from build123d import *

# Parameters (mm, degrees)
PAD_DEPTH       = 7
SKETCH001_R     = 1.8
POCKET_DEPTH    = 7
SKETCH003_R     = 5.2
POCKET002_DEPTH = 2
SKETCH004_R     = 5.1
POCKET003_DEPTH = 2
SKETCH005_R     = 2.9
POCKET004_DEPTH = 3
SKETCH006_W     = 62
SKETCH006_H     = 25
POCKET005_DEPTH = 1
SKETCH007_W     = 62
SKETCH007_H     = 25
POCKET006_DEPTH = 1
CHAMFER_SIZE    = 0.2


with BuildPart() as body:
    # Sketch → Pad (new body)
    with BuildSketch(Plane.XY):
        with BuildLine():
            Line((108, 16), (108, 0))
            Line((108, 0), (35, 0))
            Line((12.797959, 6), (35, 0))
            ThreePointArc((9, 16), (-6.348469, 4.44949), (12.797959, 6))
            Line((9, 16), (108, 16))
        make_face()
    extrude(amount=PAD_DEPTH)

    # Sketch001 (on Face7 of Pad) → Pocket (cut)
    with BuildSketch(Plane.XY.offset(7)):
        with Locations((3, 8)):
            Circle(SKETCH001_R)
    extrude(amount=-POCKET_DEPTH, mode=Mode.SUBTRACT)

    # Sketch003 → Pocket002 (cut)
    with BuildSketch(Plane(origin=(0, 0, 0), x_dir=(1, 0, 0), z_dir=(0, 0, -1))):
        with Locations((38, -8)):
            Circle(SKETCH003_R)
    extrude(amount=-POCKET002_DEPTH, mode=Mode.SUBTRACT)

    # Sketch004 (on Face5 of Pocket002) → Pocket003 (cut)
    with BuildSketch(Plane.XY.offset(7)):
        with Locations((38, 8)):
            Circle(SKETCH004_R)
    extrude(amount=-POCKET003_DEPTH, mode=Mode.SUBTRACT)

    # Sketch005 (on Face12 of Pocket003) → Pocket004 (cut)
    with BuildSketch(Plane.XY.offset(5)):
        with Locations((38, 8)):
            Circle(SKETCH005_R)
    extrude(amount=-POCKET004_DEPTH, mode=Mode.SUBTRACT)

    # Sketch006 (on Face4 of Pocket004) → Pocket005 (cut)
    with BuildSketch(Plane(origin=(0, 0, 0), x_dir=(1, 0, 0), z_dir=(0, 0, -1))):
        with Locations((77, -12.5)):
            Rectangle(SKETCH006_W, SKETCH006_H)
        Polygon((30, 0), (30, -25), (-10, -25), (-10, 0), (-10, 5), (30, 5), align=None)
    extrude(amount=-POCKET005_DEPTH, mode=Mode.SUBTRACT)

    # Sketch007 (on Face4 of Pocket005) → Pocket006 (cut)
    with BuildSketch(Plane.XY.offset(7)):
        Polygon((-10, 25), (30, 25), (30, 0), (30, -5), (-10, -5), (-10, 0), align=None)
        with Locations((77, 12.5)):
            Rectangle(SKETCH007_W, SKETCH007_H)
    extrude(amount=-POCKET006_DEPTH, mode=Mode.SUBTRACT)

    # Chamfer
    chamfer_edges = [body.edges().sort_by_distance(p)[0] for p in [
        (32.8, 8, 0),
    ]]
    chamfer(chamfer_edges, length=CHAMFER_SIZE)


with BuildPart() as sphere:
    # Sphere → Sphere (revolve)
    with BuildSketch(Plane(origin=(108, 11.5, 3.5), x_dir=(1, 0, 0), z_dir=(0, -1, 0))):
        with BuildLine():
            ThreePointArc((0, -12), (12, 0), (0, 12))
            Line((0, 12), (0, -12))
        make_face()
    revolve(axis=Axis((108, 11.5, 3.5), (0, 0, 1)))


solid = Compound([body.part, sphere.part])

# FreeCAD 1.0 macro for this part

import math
import FreeCAD as App
import Part
import Sketcher
from FreeCAD import Vector


def edges_at(feature, points):
    """Names of the edges that pass closest to the given points."""
    edges = feature.Shape.Edges
    near = lambda p: min(range(len(edges)), key=lambda i: edges[i].distToShape(Part.Vertex(*p))[0])
    return sorted({f"Edge{near(p) + 1}" for p in points})


def add_polygon(sketch, points):
    """Adds a closed chain of lines whose ends are joined by coincident constraints."""
    first, n = sketch.GeometryCount, len(points)
    for a, b in zip(points, points[1:] + points[:1]):
        sketch.addGeometry(Part.LineSegment(App.Vector(*a, 0), App.Vector(*b, 0)), False)
    for i in range(n):
        sketch.addConstraint(Sketcher.Constraint("Coincident", first + i, 2, first + (i + 1) % n, 1))

doc = App.newDocument("Part")
body = doc.addObject("PartDesign::Body", "Body")

# Sketch on XY plane
sketch1 = body.newObject("Sketcher::SketchObject", "Sketch")
sketch1.AttachmentSupport = (doc.getObject("XY_Plane"), [""])
sketch1.MapMode = "FlatFace"
sketch1.addGeometry([
    Part.LineSegment(Vector(108, 0, 0), Vector(108, 16, 0)),  # 0
    Part.LineSegment(Vector(108, 16, 0), Vector(9, 16, 0)),  # 1
    Part.ArcOfCircle(Part.Circle(Vector(3, 8, 0), Vector(0, 0, 1), 10), math.radians(53), math.radians(348)),  # 2
    Part.LineSegment(Vector(13, 6, 0), Vector(35, 0, 0)),  # 3
    Part.LineSegment(Vector(35, 0, 0), Vector(108, 0, 0)),  # 4
], False)
sketch1.addConstraint([
    Sketcher.Constraint("Coincident", 0, 2, 1, 1),
    Sketcher.Constraint("Coincident", 1, 2, 2, 1),
    Sketcher.Constraint("Coincident", 2, 2, 3, 1),
    Sketcher.Constraint("Coincident", 3, 2, 4, 1),
    Sketcher.Constraint("Coincident", 4, 2, 0, 1),
    Sketcher.Constraint("Vertical", 0),
    Sketcher.Constraint("Horizontal", 1),
    Sketcher.Constraint("Horizontal", 4),
    Sketcher.Constraint("PointOnObject", 3, 2, -1),
    Sketcher.Constraint("Radius", 2, 10.0),
    Sketcher.Constraint("DistanceX", 1, 2, 1, 1, 99.0),
    Sketcher.Constraint("DistanceX", 4, 1, 4, 2, 73.0),
    Sketcher.Constraint("DistanceY", 0, 1, 0, 2, 16.0),
    Sketcher.Constraint("DistanceX", -1, 1, 2, 3, 3.0),
    Sketcher.Constraint("DistanceY", -1, 1, 2, 3, 8.0),
    Sketcher.Constraint("DistanceY", -1, 1, 2, 2, 6.0),
])
pad1 = body.newObject("PartDesign::Pad", "Pad")
pad1.Profile = sketch1
pad1.Length = 7

# Sketch on XY plane
sketch2 = body.newObject("Sketcher::SketchObject", "Sketch001")
sketch2.AttachmentSupport = (doc.getObject("XY_Plane"), [""])
sketch2.MapMode = "FlatFace"
sketch2.AttachmentOffset = App.Placement(Vector(0, 0, 7), App.Rotation())
sketch2.addGeometry(Part.Circle(Vector(3, 8, 0), Vector(0, 0, 1), 1.8), False)
sketch2.addConstraint([
    Sketcher.Constraint("Diameter", 0, 3.6),
    Sketcher.Constraint("DistanceX", -1, 1, 0, 3, 3.0),
    Sketcher.Constraint("DistanceY", -1, 1, 0, 3, 8.0),
])
pocket1 = body.newObject("PartDesign::Pocket", "Pocket")
pocket1.Profile = sketch2
pocket1.Length = 7

# Sketch on XY plane
sketch3 = body.newObject("Sketcher::SketchObject", "Sketch002")
sketch3.AttachmentSupport = (doc.getObject("XY_Plane"), [""])
sketch3.MapMode = "FlatFace"
sketch3.addGeometry(Part.Circle(Vector(38, 8, 0), Vector(0, 0, 1), 5), False)
sketch3.addConstraint([
    Sketcher.Constraint("Diameter", 0, 10.4),
    Sketcher.Constraint("DistanceX", -1, 1, 0, 3, 38.0),
    Sketcher.Constraint("DistanceY", -1, 1, 0, 3, 8.0),
])
pocket2 = body.newObject("PartDesign::Pocket", "Pocket001")
pocket2.Profile = sketch3
pocket2.Length = 2
pocket2.Reversed = True

# Sketch on XY plane
sketch4 = body.newObject("Sketcher::SketchObject", "Sketch003")
sketch4.AttachmentSupport = (doc.getObject("XY_Plane"), [""])
sketch4.MapMode = "FlatFace"
sketch4.AttachmentOffset = App.Placement(Vector(0, 0, 7), App.Rotation())
sketch4.addGeometry(Part.Circle(Vector(38, 8, 0), Vector(0, 0, 1), 5), False)
sketch4.addConstraint([
    Sketcher.Constraint("Diameter", 0, 10.2),
    Sketcher.Constraint("DistanceX", -1, 1, 0, 3, 38.0),
    Sketcher.Constraint("DistanceY", -1, 1, 0, 3, 8.0),
])
pocket3 = body.newObject("PartDesign::Pocket", "Pocket002")
pocket3.Profile = sketch4
pocket3.Length = 2

# Sketch on XY plane
sketch5 = body.newObject("Sketcher::SketchObject", "Sketch004")
sketch5.AttachmentSupport = (doc.getObject("XY_Plane"), [""])
sketch5.MapMode = "FlatFace"
sketch5.AttachmentOffset = App.Placement(Vector(0, 0, 5), App.Rotation())
sketch5.addGeometry(Part.Circle(Vector(38, 8, 0), Vector(0, 0, 1), 2.9), False)
sketch5.addConstraint([
    Sketcher.Constraint("Diameter", 0, 5.8),
    Sketcher.Constraint("DistanceX", -1, 1, 0, 3, 38.0),
    Sketcher.Constraint("DistanceY", -1, 1, 0, 3, 8.0),
])
pocket4 = body.newObject("PartDesign::Pocket", "Pocket003")
pocket4.Profile = sketch5
pocket4.Length = 3

# Sketch on XY plane
sketch6 = body.newObject("Sketcher::SketchObject", "Sketch005")
sketch6.AttachmentSupport = (doc.getObject("XY_Plane"), [""])
sketch6.MapMode = "FlatFace"
add_polygon(sketch6, [(46, 0), (46, 25), (108, 25), (108, 0)])  # lines 0-3
add_polygon(sketch6, [(30, 25), (30, -5), (-10, -5), (-10, 25)])  # lines 4-7
sketch6.addConstraint([
    Sketcher.Constraint("Vertical", 0),
    Sketcher.Constraint("Horizontal", 1),
    Sketcher.Constraint("Vertical", 2),
    Sketcher.Constraint("Horizontal", 3),
    Sketcher.Constraint("Vertical", 4),
    Sketcher.Constraint("Horizontal", 5),
    Sketcher.Constraint("Vertical", 6),
    Sketcher.Constraint("Horizontal", 7),
    Sketcher.Constraint("PointOnObject", 2, 2, -1),
    Sketcher.Constraint("Horizontal", 1, 2, 6, 2),
    Sketcher.Constraint("DistanceX", 1, 1, 1, 2, 62.0),
    Sketcher.Constraint("DistanceX", 5, 2, 5, 1, 40.0),
    Sketcher.Constraint("DistanceY", 0, 1, 0, 2, 25.0),
    Sketcher.Constraint("DistanceY", 4, 2, 4, 1, 30.0),
    Sketcher.Constraint("DistanceX", -1, 1, 0, 2, 46.0),
    Sketcher.Constraint("DistanceX", -1, 1, 4, 2, 30.0),
])
pocket5 = body.newObject("PartDesign::Pocket", "Pocket004")
pocket5.Profile = sketch6
pocket5.Length = 1
pocket5.Reversed = True

# Sketch on XY plane
sketch7 = body.newObject("Sketcher::SketchObject", "Sketch006")
sketch7.AttachmentSupport = (doc.getObject("XY_Plane"), [""])
sketch7.MapMode = "FlatFace"
sketch7.AttachmentOffset = App.Placement(Vector(0, 0, 7), App.Rotation())
add_polygon(sketch7, [(30, 25), (-10, 25), (-10, -5), (30, -5)])  # lines 0-3
add_polygon(sketch7, [(46, 25), (46, 0), (108, 0), (108, 25)])  # lines 4-7
sketch7.addConstraint([
    Sketcher.Constraint("Horizontal", 0),
    Sketcher.Constraint("Vertical", 1),
    Sketcher.Constraint("Horizontal", 2),
    Sketcher.Constraint("Vertical", 3),
    Sketcher.Constraint("Vertical", 4),
    Sketcher.Constraint("Horizontal", 5),
    Sketcher.Constraint("Vertical", 6),
    Sketcher.Constraint("Horizontal", 7),
    Sketcher.Constraint("PointOnObject", 4, 2, -1),
    Sketcher.Constraint("Horizontal", 3, 2, 6, 2),
    Sketcher.Constraint("DistanceX", 0, 2, 0, 1, 40.0),
    Sketcher.Constraint("DistanceX", 5, 1, 5, 2, 62.0),
    Sketcher.Constraint("DistanceY", 1, 2, 1, 1, 30.0),
    Sketcher.Constraint("DistanceY", 4, 2, 4, 1, 25.0),
    Sketcher.Constraint("DistanceX", 0, 2, -1, 1, 10.0),
    Sketcher.Constraint("DistanceX", -1, 1, 4, 2, 46.0),
])
pocket6 = body.newObject("PartDesign::Pocket", "Pocket005")
pocket6.Profile = sketch7
pocket6.Length = 1
doc.recompute()

chamfer = body.newObject("PartDesign::Chamfer", "Chamfer")
chamfer.Base = (pocket6, edges_at(pocket6, [(32.8, 8, 0)]))
chamfer.Size = 0.2
body2 = doc.addObject("PartDesign::Body", "Body001")

# Sketch on XZ plane
sketch8 = body2.newObject("Sketcher::SketchObject", "Sketch007")
sketch8.AttachmentSupport = (doc.getObject("XZ_Plane001"), [""])
sketch8.MapMode = "FlatFace"
sketch8.AttachmentOffset = App.Placement(Vector(0, 0, -11.5), App.Rotation())
sketch8.addGeometry([
    Part.ArcOfCircle(Part.Circle(Vector(108, 4, 0), Vector(0, 0, 1), 12), math.radians(-90), math.radians(90)),
    Part.LineSegment(Vector(108, 16, 0), Vector(108, -8, 0)),
], False)
sketch8.addGeometry(Part.LineSegment(Vector(108, -8, 0), Vector(108, 16, 0)), True)  # axis
sketch8.addConstraint([
    Sketcher.Constraint("Coincident", 0, 1, 1, 2),
    Sketcher.Constraint("Coincident", 1, 1, 0, 2),
    Sketcher.Constraint("Vertical", 1),
    Sketcher.Constraint("Vertical", 2),
    Sketcher.Constraint("Coincident", 2, 1, 0, 1),
    Sketcher.Constraint("Equal", 1, 2),
    Sketcher.Constraint("Radius", 0, 12.0),
    Sketcher.Constraint("DistanceX", -1, 1, 0, 3, 108.0),
    Sketcher.Constraint("DistanceX", -1, 1, 0, 1, 108.0),
    Sketcher.Constraint("DistanceY", -1, 1, 0, 3, 3.5),
])
revolution = body2.newObject("PartDesign::Revolution", "Revolution")
revolution.Profile = sketch8
revolution.ReferenceAxis = (sketch8, ["Axis0"])
revolution.Angle = 360

doc.recompute()
